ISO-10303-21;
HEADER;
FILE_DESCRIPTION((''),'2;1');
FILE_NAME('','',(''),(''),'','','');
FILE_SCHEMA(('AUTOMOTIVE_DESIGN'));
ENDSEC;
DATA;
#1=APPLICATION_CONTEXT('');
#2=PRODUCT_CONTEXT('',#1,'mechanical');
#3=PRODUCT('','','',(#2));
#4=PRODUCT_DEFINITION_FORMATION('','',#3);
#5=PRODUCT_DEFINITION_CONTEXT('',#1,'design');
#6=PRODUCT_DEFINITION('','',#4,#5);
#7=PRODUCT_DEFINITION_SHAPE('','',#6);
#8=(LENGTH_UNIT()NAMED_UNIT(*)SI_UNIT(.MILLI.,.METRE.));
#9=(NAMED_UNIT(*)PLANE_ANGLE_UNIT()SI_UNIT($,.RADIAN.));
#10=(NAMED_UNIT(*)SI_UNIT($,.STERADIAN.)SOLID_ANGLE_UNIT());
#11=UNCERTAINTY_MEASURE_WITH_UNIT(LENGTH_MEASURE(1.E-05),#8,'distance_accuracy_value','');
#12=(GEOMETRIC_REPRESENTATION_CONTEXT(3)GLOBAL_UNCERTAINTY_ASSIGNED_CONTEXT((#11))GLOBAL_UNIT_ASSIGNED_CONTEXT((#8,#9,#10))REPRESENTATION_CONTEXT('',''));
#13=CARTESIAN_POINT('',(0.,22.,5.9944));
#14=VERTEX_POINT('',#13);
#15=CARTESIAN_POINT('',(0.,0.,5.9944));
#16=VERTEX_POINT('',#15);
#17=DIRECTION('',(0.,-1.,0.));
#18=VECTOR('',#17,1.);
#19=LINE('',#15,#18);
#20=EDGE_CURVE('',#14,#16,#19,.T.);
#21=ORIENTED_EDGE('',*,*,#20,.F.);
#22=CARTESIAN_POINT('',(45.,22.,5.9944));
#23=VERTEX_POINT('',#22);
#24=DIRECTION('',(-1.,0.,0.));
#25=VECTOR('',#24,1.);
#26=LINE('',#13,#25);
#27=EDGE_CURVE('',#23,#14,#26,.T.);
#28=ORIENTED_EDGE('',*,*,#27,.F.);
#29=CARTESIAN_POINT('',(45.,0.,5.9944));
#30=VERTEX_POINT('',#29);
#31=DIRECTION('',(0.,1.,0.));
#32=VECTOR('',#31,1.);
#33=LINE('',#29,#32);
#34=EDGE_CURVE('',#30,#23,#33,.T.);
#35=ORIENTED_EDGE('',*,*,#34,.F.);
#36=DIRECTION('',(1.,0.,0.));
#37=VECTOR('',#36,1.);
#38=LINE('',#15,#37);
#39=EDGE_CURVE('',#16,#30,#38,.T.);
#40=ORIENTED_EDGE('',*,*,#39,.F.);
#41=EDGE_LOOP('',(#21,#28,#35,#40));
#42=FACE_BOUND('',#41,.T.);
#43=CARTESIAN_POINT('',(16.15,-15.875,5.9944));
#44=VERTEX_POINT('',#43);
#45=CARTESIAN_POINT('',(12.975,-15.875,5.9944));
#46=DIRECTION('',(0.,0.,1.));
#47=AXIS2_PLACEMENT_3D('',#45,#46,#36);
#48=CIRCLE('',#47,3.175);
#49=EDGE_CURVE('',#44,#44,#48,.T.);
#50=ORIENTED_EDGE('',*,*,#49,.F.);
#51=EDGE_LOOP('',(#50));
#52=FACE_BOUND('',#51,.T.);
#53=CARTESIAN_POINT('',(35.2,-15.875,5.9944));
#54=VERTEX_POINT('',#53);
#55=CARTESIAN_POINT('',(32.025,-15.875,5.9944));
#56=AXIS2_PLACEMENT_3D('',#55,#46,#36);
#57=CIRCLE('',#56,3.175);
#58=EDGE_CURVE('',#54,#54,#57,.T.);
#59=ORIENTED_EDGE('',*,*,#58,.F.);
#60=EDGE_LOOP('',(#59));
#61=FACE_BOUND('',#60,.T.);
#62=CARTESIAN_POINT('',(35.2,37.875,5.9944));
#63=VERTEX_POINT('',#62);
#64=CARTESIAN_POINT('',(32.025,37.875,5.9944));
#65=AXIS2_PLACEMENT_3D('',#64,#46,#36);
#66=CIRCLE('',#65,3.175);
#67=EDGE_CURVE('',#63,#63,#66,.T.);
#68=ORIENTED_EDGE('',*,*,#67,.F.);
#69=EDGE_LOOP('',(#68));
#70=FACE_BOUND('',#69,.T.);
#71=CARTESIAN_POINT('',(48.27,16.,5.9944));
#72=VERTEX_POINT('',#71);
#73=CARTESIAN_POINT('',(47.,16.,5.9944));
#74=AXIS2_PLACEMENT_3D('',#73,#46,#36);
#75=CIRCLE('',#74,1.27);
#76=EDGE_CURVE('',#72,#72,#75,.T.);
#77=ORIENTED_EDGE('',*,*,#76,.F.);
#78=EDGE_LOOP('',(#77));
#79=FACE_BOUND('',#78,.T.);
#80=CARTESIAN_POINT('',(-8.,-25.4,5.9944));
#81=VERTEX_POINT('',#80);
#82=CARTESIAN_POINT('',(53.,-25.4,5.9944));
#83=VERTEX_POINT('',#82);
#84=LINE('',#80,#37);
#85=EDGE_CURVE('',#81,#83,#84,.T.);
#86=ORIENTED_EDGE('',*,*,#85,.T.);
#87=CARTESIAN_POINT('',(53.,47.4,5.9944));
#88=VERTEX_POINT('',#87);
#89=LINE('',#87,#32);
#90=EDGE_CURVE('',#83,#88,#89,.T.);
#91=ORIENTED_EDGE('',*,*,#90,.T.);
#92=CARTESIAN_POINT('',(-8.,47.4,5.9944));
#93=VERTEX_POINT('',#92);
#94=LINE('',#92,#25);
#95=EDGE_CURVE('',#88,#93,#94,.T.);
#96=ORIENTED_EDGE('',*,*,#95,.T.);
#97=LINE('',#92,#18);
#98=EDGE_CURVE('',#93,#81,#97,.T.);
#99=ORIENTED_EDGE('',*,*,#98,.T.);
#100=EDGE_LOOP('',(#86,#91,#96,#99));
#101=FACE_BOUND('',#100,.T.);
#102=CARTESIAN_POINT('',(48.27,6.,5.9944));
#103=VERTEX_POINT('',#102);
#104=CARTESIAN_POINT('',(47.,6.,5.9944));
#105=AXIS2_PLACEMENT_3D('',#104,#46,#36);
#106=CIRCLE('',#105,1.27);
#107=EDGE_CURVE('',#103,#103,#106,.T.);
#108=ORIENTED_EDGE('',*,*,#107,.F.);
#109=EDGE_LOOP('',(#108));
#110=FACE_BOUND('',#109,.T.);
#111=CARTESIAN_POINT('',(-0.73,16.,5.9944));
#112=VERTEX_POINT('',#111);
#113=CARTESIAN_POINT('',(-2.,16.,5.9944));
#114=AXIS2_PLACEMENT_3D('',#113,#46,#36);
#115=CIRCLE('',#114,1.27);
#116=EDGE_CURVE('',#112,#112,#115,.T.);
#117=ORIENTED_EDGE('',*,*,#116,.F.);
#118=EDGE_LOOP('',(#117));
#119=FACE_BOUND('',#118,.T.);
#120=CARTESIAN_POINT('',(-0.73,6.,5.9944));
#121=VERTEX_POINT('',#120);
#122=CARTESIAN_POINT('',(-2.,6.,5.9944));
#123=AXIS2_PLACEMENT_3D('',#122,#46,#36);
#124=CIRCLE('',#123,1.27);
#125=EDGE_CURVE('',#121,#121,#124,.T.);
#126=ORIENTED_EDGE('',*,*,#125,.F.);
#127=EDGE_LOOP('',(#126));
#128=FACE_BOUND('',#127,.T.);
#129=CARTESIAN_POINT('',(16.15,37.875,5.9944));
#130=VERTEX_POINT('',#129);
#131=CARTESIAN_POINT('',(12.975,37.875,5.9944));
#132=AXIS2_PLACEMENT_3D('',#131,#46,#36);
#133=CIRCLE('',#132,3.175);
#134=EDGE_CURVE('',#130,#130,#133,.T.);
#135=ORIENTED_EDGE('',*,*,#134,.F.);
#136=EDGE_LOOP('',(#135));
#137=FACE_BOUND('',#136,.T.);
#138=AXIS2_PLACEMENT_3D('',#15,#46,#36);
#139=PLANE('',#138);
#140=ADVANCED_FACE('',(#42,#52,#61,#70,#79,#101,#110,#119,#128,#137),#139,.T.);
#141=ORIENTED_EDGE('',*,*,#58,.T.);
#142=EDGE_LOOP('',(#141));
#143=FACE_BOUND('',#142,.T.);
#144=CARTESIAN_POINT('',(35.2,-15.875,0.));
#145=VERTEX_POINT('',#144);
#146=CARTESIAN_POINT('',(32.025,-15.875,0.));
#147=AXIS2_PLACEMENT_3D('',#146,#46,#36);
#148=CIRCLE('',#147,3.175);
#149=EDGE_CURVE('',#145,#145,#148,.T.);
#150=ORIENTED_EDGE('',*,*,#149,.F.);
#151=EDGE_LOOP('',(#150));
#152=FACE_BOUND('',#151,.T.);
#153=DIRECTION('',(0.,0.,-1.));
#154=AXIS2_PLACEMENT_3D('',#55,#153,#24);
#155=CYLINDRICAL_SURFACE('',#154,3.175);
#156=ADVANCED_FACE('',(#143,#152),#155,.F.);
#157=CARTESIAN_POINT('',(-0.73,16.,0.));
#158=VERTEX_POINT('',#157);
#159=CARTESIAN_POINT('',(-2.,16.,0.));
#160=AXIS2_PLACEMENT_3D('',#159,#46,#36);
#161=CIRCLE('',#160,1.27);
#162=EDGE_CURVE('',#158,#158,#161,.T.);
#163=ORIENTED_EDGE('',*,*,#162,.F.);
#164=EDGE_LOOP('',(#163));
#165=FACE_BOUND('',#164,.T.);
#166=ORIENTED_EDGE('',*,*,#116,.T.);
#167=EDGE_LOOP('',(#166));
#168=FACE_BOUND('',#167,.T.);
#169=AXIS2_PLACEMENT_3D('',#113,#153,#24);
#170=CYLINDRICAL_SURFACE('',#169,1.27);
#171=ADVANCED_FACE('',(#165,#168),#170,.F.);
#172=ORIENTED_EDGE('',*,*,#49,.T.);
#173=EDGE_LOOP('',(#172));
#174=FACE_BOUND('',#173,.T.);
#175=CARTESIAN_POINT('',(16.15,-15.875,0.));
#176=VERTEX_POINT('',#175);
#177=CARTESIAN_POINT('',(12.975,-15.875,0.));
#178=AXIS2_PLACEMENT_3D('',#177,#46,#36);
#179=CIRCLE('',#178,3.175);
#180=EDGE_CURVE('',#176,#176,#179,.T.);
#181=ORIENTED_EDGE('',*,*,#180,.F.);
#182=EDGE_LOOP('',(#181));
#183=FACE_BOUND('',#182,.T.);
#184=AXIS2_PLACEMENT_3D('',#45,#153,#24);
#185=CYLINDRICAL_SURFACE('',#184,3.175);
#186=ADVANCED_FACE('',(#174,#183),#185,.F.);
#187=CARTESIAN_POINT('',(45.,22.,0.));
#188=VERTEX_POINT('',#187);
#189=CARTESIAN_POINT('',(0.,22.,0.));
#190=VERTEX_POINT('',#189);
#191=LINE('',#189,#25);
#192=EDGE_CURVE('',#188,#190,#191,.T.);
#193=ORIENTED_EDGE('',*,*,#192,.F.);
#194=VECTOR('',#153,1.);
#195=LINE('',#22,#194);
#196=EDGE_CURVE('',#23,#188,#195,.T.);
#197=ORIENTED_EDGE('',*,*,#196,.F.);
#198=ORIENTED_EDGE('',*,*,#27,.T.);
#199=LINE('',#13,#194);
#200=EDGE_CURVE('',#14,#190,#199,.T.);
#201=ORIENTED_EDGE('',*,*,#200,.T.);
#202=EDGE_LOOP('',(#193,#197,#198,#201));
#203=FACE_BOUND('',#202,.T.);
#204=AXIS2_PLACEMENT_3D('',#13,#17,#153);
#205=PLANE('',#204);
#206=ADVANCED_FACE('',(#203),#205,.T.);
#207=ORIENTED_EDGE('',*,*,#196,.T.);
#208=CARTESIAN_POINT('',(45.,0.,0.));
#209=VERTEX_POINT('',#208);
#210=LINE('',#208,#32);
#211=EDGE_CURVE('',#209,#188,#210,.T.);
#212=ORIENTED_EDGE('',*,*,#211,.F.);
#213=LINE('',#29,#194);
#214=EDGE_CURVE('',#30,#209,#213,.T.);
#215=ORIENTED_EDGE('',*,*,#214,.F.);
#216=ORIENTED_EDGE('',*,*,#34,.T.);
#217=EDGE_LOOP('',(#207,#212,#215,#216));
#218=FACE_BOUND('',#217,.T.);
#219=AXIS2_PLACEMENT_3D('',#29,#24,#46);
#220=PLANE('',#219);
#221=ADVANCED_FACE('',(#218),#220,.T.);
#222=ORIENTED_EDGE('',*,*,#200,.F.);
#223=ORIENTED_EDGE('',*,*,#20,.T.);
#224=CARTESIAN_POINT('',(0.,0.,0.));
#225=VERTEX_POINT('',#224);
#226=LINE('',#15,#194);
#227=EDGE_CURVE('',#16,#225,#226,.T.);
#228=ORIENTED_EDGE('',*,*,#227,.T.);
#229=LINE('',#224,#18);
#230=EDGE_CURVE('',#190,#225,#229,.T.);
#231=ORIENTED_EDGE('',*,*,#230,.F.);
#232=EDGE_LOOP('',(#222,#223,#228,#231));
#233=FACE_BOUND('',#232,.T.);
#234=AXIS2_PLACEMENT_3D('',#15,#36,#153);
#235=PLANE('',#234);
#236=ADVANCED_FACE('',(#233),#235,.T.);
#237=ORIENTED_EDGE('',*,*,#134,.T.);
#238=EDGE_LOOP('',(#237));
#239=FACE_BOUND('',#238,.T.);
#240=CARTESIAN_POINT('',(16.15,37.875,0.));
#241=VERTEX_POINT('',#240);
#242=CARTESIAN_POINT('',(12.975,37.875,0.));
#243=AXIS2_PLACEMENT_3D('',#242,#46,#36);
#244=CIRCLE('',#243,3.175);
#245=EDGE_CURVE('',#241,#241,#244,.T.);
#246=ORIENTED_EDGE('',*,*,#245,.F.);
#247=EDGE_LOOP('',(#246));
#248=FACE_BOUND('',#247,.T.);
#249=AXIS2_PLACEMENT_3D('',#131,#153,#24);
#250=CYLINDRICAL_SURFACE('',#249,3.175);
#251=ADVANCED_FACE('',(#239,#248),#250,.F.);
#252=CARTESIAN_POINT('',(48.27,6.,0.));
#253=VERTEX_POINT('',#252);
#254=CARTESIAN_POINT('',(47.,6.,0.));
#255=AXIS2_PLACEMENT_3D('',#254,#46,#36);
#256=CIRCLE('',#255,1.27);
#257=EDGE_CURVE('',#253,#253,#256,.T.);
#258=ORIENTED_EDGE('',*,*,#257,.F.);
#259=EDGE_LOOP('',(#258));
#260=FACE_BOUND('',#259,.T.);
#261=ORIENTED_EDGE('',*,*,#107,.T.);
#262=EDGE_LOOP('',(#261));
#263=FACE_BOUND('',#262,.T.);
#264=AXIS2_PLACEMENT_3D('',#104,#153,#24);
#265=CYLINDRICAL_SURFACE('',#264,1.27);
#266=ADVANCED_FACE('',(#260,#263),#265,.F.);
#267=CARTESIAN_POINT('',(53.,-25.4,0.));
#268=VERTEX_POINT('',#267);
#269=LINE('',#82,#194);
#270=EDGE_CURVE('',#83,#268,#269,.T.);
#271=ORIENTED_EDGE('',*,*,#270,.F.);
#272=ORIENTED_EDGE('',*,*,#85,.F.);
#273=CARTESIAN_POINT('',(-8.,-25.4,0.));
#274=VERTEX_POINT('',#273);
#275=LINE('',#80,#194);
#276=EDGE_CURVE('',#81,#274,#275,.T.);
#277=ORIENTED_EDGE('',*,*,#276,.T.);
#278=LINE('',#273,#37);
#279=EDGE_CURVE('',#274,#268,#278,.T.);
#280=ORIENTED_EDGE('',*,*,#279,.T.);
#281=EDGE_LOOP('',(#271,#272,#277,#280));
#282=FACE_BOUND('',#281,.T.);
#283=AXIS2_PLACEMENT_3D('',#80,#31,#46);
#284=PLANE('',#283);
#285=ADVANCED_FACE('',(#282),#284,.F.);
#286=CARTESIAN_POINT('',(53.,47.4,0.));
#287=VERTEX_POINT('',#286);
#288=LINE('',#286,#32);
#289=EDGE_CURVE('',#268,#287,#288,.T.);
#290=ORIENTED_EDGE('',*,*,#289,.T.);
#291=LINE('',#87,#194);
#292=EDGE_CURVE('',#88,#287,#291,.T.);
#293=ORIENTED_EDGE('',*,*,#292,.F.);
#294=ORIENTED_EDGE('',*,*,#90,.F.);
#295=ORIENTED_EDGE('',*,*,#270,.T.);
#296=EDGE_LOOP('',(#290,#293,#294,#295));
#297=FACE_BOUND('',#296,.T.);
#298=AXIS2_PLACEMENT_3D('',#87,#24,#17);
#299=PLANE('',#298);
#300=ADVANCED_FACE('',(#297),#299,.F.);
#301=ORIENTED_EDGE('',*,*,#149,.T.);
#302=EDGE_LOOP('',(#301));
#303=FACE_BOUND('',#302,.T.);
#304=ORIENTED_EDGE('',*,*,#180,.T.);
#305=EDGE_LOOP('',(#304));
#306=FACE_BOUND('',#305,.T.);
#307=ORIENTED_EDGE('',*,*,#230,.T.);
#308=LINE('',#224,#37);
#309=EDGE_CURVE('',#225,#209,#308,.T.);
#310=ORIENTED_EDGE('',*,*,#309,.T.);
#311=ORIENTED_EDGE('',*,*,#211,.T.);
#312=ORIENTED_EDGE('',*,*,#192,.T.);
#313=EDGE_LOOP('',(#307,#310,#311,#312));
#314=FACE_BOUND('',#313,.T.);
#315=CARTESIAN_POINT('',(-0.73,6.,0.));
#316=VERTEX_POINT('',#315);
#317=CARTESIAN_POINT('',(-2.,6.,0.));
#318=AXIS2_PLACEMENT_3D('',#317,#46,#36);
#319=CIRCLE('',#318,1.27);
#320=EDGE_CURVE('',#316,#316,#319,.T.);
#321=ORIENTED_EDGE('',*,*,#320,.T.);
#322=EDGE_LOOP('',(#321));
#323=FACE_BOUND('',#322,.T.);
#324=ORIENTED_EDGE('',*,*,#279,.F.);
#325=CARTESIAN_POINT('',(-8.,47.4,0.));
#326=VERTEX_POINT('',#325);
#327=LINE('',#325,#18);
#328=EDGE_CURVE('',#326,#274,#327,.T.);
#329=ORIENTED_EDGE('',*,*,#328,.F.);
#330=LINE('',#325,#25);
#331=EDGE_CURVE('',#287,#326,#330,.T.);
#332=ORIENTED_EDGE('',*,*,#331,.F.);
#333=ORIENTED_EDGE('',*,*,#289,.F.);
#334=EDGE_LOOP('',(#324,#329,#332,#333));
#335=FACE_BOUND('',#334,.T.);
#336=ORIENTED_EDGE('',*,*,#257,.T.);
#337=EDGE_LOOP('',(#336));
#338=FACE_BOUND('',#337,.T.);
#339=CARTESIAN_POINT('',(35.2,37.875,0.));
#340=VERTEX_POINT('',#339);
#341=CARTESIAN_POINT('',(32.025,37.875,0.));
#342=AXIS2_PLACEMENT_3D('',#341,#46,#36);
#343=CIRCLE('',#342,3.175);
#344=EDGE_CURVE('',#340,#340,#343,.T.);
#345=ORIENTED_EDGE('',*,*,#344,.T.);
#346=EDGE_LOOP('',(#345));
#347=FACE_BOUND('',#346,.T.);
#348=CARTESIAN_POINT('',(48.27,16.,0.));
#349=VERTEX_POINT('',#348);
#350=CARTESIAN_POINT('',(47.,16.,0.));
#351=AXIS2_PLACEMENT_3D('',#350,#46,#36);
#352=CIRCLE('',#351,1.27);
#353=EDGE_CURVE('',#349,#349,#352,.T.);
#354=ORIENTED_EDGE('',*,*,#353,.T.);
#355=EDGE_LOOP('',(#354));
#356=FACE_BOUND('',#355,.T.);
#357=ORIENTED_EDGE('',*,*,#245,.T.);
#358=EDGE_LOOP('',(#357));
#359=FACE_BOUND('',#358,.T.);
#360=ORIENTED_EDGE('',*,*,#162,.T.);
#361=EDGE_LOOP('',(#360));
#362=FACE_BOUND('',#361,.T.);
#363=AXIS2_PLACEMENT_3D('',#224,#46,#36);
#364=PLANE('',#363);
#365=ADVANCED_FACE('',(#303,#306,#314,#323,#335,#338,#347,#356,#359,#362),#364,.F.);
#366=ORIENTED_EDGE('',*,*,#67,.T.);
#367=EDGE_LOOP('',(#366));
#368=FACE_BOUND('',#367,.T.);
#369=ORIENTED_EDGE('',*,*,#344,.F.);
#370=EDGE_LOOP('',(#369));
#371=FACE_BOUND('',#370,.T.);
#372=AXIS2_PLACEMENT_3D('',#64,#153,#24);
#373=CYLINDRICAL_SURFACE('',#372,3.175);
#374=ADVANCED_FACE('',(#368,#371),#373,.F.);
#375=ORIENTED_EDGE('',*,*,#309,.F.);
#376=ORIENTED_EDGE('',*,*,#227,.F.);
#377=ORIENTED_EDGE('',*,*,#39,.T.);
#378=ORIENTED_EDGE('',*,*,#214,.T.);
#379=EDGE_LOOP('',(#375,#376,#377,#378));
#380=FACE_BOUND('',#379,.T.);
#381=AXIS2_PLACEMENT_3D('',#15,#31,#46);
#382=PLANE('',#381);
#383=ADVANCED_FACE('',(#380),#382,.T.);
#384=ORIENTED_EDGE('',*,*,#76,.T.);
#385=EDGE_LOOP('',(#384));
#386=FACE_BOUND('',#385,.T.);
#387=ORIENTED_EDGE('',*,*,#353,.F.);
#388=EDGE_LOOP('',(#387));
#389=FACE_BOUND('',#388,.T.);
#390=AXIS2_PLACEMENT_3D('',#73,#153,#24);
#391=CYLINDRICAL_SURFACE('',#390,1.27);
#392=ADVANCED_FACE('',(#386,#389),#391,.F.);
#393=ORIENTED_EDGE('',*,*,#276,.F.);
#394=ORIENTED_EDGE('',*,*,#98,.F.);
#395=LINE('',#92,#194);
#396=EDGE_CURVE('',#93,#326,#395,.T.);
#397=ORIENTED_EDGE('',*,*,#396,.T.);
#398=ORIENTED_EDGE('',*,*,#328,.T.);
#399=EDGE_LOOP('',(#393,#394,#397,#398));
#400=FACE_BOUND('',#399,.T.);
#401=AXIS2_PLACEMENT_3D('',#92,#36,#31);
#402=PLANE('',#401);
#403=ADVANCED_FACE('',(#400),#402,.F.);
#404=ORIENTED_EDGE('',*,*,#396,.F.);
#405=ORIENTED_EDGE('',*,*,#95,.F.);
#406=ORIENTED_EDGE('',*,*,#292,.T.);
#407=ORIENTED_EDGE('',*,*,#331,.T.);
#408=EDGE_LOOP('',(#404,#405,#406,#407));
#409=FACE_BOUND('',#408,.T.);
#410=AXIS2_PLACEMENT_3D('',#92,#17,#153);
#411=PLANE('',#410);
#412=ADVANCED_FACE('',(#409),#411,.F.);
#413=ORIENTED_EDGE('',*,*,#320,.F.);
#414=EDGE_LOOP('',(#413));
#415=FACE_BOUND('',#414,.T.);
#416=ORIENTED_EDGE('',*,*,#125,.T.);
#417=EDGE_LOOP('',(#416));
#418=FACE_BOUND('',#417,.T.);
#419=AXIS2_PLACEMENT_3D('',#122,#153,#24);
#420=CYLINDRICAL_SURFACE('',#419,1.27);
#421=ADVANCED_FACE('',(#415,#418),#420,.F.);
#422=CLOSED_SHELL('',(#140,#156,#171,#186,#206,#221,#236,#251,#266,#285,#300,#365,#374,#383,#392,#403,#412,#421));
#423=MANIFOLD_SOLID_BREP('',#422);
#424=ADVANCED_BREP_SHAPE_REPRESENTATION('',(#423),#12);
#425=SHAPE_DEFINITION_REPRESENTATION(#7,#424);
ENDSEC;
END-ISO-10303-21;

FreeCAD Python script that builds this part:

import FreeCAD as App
import Part
import Sketcher

V = App.Vector


def add_polygon(sketch, points):
    """Adds a closed chain of lines whose ends are joined by coincident constraints."""
    first, n = sketch.GeometryCount, len(points)
    for a, b in zip(points, points[1:] + points[:1]):
        sketch.addGeometry(Part.LineSegment(App.Vector(*a, 0), App.Vector(*b, 0)), False)
    for i in range(n):
        sketch.addConstraint(Sketcher.Constraint("Coincident", first + i, 2, first + (i + 1) % n, 1))

doc = App.newDocument("Part")
params = doc.addObject("Spreadsheet::Sheet", "Params")
for row, (alias, value) in enumerate([
    ("sketch1_diameter", "6.35 mm"),
    ("sketch1_diameter2", "2.54 mm"),
    ("sketch1_width", "61 mm"),
    ("sketch1_width2", "45 mm"),
    ("sketch1_height", "22 mm"),
    ("pad1_length", "5.9944 mm"),
], start=1):
    params.set(f"A{row}", alias)
    params.set(f"B{row}", "=" + value)
    params.setAlias(f"B{row}", alias)

body = doc.addObject("PartDesign::Body", "Body")

# Sketch on XY plane
sketch1 = doc.addObject("Sketcher::SketchObject", "Sketch")
body.addObject(sketch1)
sketch1.AttachmentSupport = (doc.XY_Plane, [""])
sketch1.MapMode = "FlatFace"
add_polygon(sketch1, [(-8, 47.4), (-8, -25.4), (53, -25.4), (53, 47.4)])  # lines 0-3
sketch1.addGeometry(Part.Circle(V(13, -15.9, 0), V(0, 0, 1), 3.2), False)  # 4
sketch1.addGeometry(Part.Circle(V(-2, 6, 0), V(0, 0, 1), 1.3), False)  # 5
sketch1.addGeometry(Part.Circle(V(32, -15.9, 0), V(0, 0, 1), 3.2), False)  # 6
sketch1.addGeometry(Part.Circle(V(47, 6, 0), V(0, 0, 1), 1.3), False)  # 7
sketch1.addGeometry(Part.Circle(V(-2, 16, 0), V(0, 0, 1), 1.3), False)  # 8
sketch1.addGeometry(Part.Circle(V(13, 37.9, 0), V(0, 0, 1), 3.2), False)  # 9
add_polygon(sketch1, [(45, 0), (0, 0), (0, 22), (45, 22)])  # lines 10-13
sketch1.addGeometry(Part.Circle(V(47, 16, 0), V(0, 0, 1), 1.3), False)  # 14
sketch1.addGeometry(Part.Circle(V(32, 37.9, 0), V(0, 0, 1), 3.2), False)  # 15
sketch1.addConstraint([
    Sketcher.Constraint("Vertical", 0),
    Sketcher.Constraint("Horizontal", 1),
    Sketcher.Constraint("Vertical", 2),
    Sketcher.Constraint("Horizontal", 3),
    Sketcher.Constraint("Horizontal", 10),
    Sketcher.Constraint("Vertical", 11),
    Sketcher.Constraint("Horizontal", 12),
    Sketcher.Constraint("Vertical", 13),
    Sketcher.Constraint("Coincident", 10, 2, -1, 1),
    Sketcher.Constraint("Equal", 4, 6),
    Sketcher.Constraint("Equal", 5, 7),
    Sketcher.Constraint("Equal", 7, 8),
    Sketcher.Constraint("Equal", 6, 9),
    Sketcher.Constraint("Equal", 8, 14),
    Sketcher.Constraint("Equal", 9, 15),
    Sketcher.Constraint("Horizontal", 4, 3, 6, 3),
    Sketcher.Constraint("Horizontal", 5, 3, 7, 3),
    Sketcher.Constraint("Horizontal", 8, 3, 14, 3),
    Sketcher.Constraint("Horizontal", 9, 3, 15, 3),
    Sketcher.Constraint("Vertical", 5, 3, 8, 3),
    Sketcher.Constraint("Vertical", 4, 3, 9, 3),
    Sketcher.Constraint("Vertical", 7, 3, 14, 3),
    Sketcher.Constraint("Vertical", 6, 3, 15, 3),
    Sketcher.Constraint("Diameter", 4, 6.35),
    Sketcher.Constraint("Diameter", 5, 2.54),
    Sketcher.Constraint("DistanceX", 1, 1, 1, 2, 61.0),
    Sketcher.Constraint("DistanceX", 10, 2, 10, 1, 45.0),
    Sketcher.Constraint("DistanceY", 11, 1, 11, 2, 22.0),
    Sketcher.Constraint("DistanceY", 0, 2, 0, 1, 72.8),
    Sketcher.Constraint("DistanceX", 5, 3, -1, 1, 2.0),
    Sketcher.Constraint("DistanceY", -1, 1, 5, 3, 6.0),
    Sketcher.Constraint("DistanceX", -1, 1, 7, 3, 47.0),
    Sketcher.Constraint("DistanceY", -1, 1, 8, 3, 16.0),
    Sketcher.Constraint("DistanceX", 0, 2, -1, 1, 8.0),
    Sketcher.Constraint("DistanceY", 0, 2, -1, 1, 25.4),
    Sketcher.Constraint("DistanceX", 4, 3, 6, 3, 19.05),
    Sketcher.Constraint("DistanceY", 4, 3, 9, 3, 53.75),
    Sketcher.Constraint("DistanceX", -1, 1, 4, 3, 12.975),
    Sketcher.Constraint("DistanceY", 4, 3, -1, 1, 15.875),
])
sketch1.setExpression("Constraints[31]", "Params.sketch1_diameter")
sketch1.setExpression("Constraints[32]", "Params.sketch1_diameter2")
sketch1.setExpression("Constraints[33]", "Params.sketch1_width")
sketch1.setExpression("Constraints[34]", "Params.sketch1_width2")
sketch1.setExpression("Constraints[35]", "Params.sketch1_height")
pad1 = doc.addObject("PartDesign::Pad", "Pad")
body.addObject(pad1)
pad1.Profile = sketch1
pad1.setExpression("Length", "Params.pad1_length")

doc.recompute()
